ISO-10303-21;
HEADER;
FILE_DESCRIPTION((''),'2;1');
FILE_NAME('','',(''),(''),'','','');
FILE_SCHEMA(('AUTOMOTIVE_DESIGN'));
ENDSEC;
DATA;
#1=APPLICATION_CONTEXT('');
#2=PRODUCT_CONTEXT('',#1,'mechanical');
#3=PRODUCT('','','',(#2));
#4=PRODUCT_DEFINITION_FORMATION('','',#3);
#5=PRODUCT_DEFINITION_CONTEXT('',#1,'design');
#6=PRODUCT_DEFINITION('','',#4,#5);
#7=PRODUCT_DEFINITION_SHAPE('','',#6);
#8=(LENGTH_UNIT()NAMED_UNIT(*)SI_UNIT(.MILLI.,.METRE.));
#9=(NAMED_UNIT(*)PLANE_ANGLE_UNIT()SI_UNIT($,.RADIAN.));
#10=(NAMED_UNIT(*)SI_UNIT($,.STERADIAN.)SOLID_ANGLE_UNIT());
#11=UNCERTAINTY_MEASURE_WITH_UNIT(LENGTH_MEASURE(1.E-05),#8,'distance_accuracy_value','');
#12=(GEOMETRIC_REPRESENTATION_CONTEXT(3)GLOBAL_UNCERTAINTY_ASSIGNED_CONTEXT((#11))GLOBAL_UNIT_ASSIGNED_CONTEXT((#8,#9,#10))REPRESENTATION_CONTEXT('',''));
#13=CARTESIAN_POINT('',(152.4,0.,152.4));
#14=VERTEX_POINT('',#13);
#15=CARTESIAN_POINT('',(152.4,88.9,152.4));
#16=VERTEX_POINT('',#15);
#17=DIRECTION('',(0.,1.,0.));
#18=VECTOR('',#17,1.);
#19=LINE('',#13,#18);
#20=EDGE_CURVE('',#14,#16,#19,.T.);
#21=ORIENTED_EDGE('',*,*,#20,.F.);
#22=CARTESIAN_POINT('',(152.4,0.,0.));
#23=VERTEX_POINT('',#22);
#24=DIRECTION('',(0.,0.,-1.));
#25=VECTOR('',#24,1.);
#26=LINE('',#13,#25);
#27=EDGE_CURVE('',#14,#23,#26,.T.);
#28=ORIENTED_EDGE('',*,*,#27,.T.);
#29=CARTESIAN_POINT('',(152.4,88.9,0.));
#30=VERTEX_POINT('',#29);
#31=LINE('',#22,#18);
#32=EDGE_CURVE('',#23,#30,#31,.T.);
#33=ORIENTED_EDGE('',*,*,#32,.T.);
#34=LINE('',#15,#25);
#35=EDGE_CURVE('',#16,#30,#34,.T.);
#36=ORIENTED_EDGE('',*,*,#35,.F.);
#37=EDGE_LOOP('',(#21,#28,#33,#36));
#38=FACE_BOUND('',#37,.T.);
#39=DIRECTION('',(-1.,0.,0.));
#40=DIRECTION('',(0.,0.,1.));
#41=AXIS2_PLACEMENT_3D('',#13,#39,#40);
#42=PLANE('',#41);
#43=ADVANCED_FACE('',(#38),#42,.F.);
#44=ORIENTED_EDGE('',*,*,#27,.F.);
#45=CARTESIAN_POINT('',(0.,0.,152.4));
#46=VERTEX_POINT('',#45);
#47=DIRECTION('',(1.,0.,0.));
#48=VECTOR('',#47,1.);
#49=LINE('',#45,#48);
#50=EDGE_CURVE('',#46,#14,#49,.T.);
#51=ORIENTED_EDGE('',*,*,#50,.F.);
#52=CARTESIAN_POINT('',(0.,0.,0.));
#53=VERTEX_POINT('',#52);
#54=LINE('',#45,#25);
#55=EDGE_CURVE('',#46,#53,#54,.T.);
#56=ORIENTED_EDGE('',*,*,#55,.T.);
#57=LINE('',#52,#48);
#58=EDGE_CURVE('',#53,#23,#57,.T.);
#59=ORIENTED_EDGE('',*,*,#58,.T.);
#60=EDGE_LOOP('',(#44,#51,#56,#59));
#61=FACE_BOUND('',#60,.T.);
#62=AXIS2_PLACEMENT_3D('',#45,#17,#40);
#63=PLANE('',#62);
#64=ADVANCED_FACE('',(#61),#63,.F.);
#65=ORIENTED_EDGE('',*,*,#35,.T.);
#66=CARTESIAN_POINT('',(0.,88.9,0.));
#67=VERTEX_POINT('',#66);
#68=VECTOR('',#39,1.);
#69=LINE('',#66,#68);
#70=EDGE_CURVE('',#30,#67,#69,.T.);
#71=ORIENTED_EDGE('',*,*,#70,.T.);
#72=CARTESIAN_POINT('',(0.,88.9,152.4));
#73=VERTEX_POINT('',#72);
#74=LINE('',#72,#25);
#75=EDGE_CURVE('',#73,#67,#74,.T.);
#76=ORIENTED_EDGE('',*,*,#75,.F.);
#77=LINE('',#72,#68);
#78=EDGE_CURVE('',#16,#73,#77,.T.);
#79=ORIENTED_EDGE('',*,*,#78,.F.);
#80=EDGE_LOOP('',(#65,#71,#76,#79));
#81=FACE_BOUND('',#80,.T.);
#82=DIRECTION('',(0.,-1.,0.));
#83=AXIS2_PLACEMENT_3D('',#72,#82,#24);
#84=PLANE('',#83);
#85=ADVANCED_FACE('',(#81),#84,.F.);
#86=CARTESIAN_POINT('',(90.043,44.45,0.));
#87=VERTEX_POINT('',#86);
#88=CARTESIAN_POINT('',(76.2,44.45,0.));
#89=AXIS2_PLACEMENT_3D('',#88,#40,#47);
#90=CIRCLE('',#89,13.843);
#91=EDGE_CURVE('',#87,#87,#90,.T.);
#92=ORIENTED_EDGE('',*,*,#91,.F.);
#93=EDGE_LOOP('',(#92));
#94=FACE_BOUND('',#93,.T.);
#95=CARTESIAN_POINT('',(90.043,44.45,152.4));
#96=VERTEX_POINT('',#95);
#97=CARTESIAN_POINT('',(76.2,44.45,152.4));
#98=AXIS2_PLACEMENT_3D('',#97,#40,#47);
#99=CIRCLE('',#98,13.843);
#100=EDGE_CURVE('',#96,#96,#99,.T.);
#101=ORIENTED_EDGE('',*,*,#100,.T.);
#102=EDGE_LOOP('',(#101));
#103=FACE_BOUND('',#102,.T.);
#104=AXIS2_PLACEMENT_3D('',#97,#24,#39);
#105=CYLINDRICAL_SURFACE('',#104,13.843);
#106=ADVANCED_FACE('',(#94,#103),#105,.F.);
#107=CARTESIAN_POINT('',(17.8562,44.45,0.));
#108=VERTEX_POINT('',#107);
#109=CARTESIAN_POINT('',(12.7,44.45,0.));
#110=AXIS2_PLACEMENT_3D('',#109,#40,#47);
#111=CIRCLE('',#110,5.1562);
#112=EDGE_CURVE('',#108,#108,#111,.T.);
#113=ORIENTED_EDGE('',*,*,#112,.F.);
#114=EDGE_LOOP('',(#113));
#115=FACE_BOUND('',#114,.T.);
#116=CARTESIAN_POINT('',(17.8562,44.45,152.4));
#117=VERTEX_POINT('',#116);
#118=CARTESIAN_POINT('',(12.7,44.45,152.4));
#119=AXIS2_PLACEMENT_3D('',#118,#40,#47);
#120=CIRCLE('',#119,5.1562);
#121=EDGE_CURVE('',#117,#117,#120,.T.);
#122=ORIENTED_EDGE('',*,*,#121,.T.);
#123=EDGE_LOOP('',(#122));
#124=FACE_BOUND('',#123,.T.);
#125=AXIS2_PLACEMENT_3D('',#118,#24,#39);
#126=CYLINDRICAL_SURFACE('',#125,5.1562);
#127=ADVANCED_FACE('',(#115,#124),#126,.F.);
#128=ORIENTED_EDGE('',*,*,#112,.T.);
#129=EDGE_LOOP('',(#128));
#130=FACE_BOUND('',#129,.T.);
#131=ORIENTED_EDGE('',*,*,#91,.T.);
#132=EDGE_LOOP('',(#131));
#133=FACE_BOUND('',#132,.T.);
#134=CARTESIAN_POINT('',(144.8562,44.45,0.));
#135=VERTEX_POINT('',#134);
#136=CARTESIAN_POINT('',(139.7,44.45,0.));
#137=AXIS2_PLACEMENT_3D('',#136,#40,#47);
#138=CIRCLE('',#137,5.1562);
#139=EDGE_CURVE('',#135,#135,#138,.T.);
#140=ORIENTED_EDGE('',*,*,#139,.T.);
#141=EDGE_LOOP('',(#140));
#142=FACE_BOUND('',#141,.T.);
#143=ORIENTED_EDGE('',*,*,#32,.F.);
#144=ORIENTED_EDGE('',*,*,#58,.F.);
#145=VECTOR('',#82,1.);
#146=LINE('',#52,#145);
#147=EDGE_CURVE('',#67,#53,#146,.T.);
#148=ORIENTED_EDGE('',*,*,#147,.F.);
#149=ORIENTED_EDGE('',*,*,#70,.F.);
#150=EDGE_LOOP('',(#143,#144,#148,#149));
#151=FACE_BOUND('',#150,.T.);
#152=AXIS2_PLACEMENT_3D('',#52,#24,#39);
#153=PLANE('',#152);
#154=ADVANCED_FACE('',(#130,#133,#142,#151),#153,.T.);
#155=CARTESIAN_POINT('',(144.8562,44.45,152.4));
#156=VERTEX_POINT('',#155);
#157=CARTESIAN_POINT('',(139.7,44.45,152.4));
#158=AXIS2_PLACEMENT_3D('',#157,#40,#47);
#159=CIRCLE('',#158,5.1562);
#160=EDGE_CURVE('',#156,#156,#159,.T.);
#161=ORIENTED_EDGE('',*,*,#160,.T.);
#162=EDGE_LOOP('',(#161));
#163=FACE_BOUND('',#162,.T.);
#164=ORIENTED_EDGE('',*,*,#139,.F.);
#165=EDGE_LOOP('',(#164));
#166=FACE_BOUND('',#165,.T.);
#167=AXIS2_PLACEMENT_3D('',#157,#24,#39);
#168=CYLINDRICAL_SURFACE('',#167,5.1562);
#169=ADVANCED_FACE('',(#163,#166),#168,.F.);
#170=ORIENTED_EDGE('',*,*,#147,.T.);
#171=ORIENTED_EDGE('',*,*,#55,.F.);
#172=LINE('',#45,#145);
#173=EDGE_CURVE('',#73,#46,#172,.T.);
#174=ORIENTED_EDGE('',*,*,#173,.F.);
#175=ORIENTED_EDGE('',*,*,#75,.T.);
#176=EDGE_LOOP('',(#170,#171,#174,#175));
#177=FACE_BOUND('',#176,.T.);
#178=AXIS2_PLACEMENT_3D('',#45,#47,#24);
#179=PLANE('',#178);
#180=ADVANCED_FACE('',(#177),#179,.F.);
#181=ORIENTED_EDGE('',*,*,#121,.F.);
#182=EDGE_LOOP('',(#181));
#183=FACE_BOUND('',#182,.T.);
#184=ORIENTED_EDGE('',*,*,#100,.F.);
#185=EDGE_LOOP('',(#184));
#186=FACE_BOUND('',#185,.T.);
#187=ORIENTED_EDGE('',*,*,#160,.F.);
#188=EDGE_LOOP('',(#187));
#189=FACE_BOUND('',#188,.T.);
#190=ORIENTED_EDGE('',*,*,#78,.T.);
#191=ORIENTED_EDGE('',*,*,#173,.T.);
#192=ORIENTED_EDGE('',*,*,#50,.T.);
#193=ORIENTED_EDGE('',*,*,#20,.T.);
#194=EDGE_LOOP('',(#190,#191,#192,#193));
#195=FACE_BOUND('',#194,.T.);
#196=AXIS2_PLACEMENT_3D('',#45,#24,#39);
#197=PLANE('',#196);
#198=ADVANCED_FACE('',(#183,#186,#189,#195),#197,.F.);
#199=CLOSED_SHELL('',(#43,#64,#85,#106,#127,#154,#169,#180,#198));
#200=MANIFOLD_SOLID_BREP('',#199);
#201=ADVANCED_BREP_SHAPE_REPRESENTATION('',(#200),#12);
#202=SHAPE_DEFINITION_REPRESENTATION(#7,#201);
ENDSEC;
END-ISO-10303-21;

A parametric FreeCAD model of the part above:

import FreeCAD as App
import Part
import Sketcher
Q = App.Units.Quantity


def add_polygon(sketch, points):
    """Adds a closed chain of lines whose ends are joined by coincident constraints."""
    first, n = sketch.GeometryCount, len(points)
    for a, b in zip(points, points[1:] + points[:1]):
        sketch.addGeometry(Part.LineSegment(App.Vector(*a, 0), App.Vector(*b, 0)), False)
    for i in range(n):
        sketch.addConstraint(Sketcher.Constraint("Coincident", first + i, 2, first + (i + 1) % n, 1))

doc = App.newDocument("Part")
body = doc.addObject("PartDesign::Body", "Body")

sketch1 = body.newObject("Sketcher::SketchObject", "Sketch")
sketch1.AttachmentSupport = (doc.getObject("XY_Plane"), [""])
sketch1.MapMode = "FlatFace"
add_polygon(sketch1, [(0, 89), (0, 0), (152, 0), (152, 89)])
sketch1.addConstraint([
    Sketcher.Constraint("Vertical", 0),
    Sketcher.Constraint("Horizontal", 1),
    Sketcher.Constraint("Vertical", 2),
    Sketcher.Constraint("Horizontal", 3),
    Sketcher.Constraint("Coincident", 0, 2, -1, 1),
    Sketcher.Constraint("DistanceX", 1, 1, 1, 2, Q("6 in")),
    Sketcher.Constraint("DistanceY", 0, 2, 0, 1, Q("3.5 in")),
])
pad1 = body.newObject("PartDesign::Pad", "Pad")
pad1.Profile = sketch1
pad1.Length = Q("6 in")

sketch2 = body.newObject("Sketcher::SketchObject", "Sketch001")
sketch2.AttachmentSupport = (doc.getObject("XY_Plane"), [""])
sketch2.MapMode = "FlatFace"
sketch2.addGeometry(Part.Circle(App.Vector(76, 44, 0), App.Vector(0, 0, 1), 14), False)
sketch2.addConstraint([
    Sketcher.Constraint("Diameter", 0, Q("1.09 in")),
    Sketcher.Constraint("DistanceX", -1, 1, 0, 3, Q("3 in")),
    Sketcher.Constraint("DistanceY", -1, 1, 0, 3, Q("1.75 in")),
])
pocket1 = body.newObject("PartDesign::Pocket", "Pocket")
pocket1.Profile = sketch2
pocket1.Type = "ThroughAll"
pocket1.Reversed = True

sketch3 = body.newObject("Sketcher::SketchObject", "Sketch002")
sketch3.AttachmentSupport = (doc.getObject("XY_Plane"), [""])
sketch3.MapMode = "FlatFace"
sketch3.addGeometry([
    Part.Circle(App.Vector(13, 44, 0), App.Vector(0, 0, 1), 5),
    Part.Circle(App.Vector(140, 44, 0), App.Vector(0, 0, 1), 5),
], False)
sketch3.addConstraint([
    Sketcher.Constraint("Equal", 0, 1),
    Sketcher.Constraint("Horizontal", 0, 3, 1, 3),
    Sketcher.Constraint("Diameter", 0, Q("0.406 in")),
    Sketcher.Constraint("DistanceX", 0, 3, 1, 3, Q("5 in")),
    Sketcher.Constraint("DistanceX", -1, 1, 0, 3, Q("0.5 in")),
    Sketcher.Constraint("DistanceY", -1, 1, 0, 3, Q("1.75 in")),
])
pocket2 = body.newObject("PartDesign::Pocket", "Pocket001")
pocket2.Profile = sketch3
pocket2.Type = "ThroughAll"
pocket2.Reversed = True

doc.recompute()
